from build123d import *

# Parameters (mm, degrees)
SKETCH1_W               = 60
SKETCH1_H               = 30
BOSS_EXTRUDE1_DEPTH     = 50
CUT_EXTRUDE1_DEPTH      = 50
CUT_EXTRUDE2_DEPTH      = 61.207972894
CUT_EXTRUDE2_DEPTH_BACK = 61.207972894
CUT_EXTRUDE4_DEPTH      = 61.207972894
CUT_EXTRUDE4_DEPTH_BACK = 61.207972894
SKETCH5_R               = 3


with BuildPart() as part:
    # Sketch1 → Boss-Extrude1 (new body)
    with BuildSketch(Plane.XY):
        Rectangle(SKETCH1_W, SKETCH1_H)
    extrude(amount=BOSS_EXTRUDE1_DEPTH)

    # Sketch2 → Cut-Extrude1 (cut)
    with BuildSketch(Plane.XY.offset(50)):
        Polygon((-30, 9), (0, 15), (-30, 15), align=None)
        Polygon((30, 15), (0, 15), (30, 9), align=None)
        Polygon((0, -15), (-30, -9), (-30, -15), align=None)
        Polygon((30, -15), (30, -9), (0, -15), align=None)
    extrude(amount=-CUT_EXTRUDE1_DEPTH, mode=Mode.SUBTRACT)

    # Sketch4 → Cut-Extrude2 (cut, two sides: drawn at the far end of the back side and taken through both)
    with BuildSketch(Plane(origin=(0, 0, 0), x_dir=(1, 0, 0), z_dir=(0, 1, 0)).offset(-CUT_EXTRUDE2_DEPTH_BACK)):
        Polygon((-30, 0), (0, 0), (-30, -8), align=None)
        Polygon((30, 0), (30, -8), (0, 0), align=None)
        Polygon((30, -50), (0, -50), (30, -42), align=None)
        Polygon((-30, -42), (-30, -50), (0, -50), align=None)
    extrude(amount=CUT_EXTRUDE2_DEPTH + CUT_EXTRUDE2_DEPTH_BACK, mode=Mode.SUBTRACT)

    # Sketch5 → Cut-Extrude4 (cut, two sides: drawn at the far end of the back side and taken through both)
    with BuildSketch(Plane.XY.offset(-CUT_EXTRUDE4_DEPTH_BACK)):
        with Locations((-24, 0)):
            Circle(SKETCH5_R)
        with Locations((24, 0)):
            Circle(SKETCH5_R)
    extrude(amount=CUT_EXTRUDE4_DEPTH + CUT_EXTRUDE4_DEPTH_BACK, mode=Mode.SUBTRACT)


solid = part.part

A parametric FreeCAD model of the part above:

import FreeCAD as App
import Part
import Sketcher


def add_polygon(sketch, points):
    """Adds a closed chain of lines whose ends are joined by coincident constraints."""
    first, n = sketch.GeometryCount, len(points)
    for a, b in zip(points, points[1:] + points[:1]):
        sketch.addGeometry(Part.LineSegment(App.Vector(*a, 0), App.Vector(*b, 0)), False)
    for i in range(n):
        sketch.addConstraint(Sketcher.Constraint("Coincident", first + i, 2, first + (i + 1) % n, 1))

doc = App.newDocument("Part")
body = doc.addObject("PartDesign::Body", "Body")

sketch1 = body.newObject("Sketcher::SketchObject", "Sketch")
sketch1.AttachmentSupport = (doc.getObject("XY_Plane"), [""])
sketch1.MapMode = "FlatFace"
add_polygon(sketch1, [(-30, 15), (-30, -15), (30, -15), (30, 15)])
sketch1.addConstraint(Sketcher.Constraint("Vertical", 0))
sketch1.addConstraint(Sketcher.Constraint("Horizontal", 1))
sketch1.addConstraint(Sketcher.Constraint("Vertical", 2))
sketch1.addConstraint(Sketcher.Constraint("Horizontal", 3))
sketch1.addConstraint(Sketcher.Constraint("Symmetric", 0, 2, 2, 2, -1, 1))
sketch1.addConstraint(Sketcher.Constraint("DistanceX", 1, 1, 1, 2, 60.0))
sketch1.addConstraint(Sketcher.Constraint("DistanceY", 0, 2, 0, 1, 30.0))
pad1 = body.newObject("PartDesign::Pad", "Pad")
pad1.Profile = sketch1
pad1.Length = 50

sketch2 = body.newObject("Sketcher::SketchObject", "Sketch001")
sketch2.AttachmentSupport = (doc.getObject("XY_Plane"), [""])
sketch2.MapMode = "FlatFace"
sketch2.AttachmentOffset = App.Placement(App.Vector(0, 0, 50), App.Rotation())
add_polygon(sketch2, [(-30, 9), (0, 15), (-30, 15)])
add_polygon(sketch2, [(30, 15), (0, 15), (30, 9)])
add_polygon(sketch2, [(0, -15), (-30, -9), (-30, -15)])
add_polygon(sketch2, [(30, -15), (30, -9), (0, -15)])
sketch2.addConstraint(Sketcher.Constraint("Horizontal", 1))
sketch2.addConstraint(Sketcher.Constraint("Vertical", 2))
sketch2.addConstraint(Sketcher.Constraint("Horizontal", 3))
sketch2.addConstraint(Sketcher.Constraint("Vertical", 5))
sketch2.addConstraint(Sketcher.Constraint("Vertical", 7))
sketch2.addConstraint(Sketcher.Constraint("Horizontal", 8))
sketch2.addConstraint(Sketcher.Constraint("Vertical", 9))
sketch2.addConstraint(Sketcher.Constraint("Horizontal", 11))
sketch2.addConstraint(Sketcher.Constraint("Coincident", 3, 2, 0, 2))
sketch2.addConstraint(Sketcher.Constraint("Coincident", 10, 2, 8, 2))
sketch2.addConstraint(Sketcher.Constraint("Symmetric", 4, 2, 6, 2, -1, 1))
sketch2.addConstraint(Sketcher.Constraint("Symmetric", 0, 2, 8, 2, -1, 1))
sketch2.addConstraint(Sketcher.Constraint("Symmetric", 2, 2, 9, 2, -1, 1))
sketch2.addConstraint(Sketcher.Constraint("Symmetric", 2, 2, 4, 2, -2))
sketch2.addConstraint(Sketcher.Constraint("PointOnObject", 0, 2, -2))
sketch2.addConstraint(Sketcher.Constraint("DistanceX", 1, 2, 1, 1, 30.0))
sketch2.addConstraint(Sketcher.Constraint("DistanceY", 2, 2, 2, 1, 6.0))
sketch2.addConstraint(Sketcher.Constraint("DistanceY", -1, 1, 0, 2, 15.0))
pocket1 = body.newObject("PartDesign::Pocket", "Pocket")
pocket1.Profile = sketch2
pocket1.Length = 50

sketch3 = body.newObject("Sketcher::SketchObject", "Sketch002")
sketch3.AttachmentSupport = (doc.getObject("XZ_Plane"), [""])
sketch3.MapMode = "FlatFace"
add_polygon(sketch3, [(0, 0), (-30, 0), (-30, 8)])
add_polygon(sketch3, [(30, 8), (30, 0), (0, 0)])
add_polygon(sketch3, [(0, 50), (30, 50), (30, 42)])
add_polygon(sketch3, [(-30, 42), (-30, 50), (0, 50)])
sketch3.addConstraint(Sketcher.Constraint("Horizontal", 0))
sketch3.addConstraint(Sketcher.Constraint("Vertical", 1))
sketch3.addConstraint(Sketcher.Constraint("Vertical", 3))
sketch3.addConstraint(Sketcher.Constraint("Horizontal", 4))
sketch3.addConstraint(Sketcher.Constraint("Horizontal", 6))
sketch3.addConstraint(Sketcher.Constraint("Vertical", 7))
sketch3.addConstraint(Sketcher.Constraint("Vertical", 9))
sketch3.addConstraint(Sketcher.Constraint("Horizontal", 10))
sketch3.addConstraint(Sketcher.Constraint("Coincident", 2, 2, -1, 1))
sketch3.addConstraint(Sketcher.Constraint("Coincident", 4, 2, -1, 1))
sketch3.addConstraint(Sketcher.Constraint("Coincident", 10, 2, 8, 2))
sketch3.addConstraint(Sketcher.Constraint("Symmetric", 1, 2, 5, 2, -2))
sketch3.addConstraint(Sketcher.Constraint("Symmetric", 7, 2, 11, 2, -2))
sketch3.addConstraint(Sketcher.Constraint("PointOnObject", 8, 2, -2))
sketch3.addConstraint(Sketcher.Constraint("Parallel", 2, 8))
sketch3.addConstraint(Sketcher.Constraint("Vertical", 5, 2, 6, 2))
sketch3.addConstraint(Sketcher.Constraint("DistanceX", 0, 2, 0, 1, 30.0))
sketch3.addConstraint(Sketcher.Constraint("DistanceY", 1, 1, 1, 2, 8.0))
sketch3.addConstraint(Sketcher.Constraint("DistanceY", -1, 1, 6, 2, 50.0))
pocket2 = body.newObject("PartDesign::Pocket", "Pocket001")
pocket2.Profile = sketch3
pocket2.Type = "ThroughAll"
pocket2.Midplane = True

sketch4 = body.newObject("Sketcher::SketchObject", "Sketch003")
sketch4.AttachmentSupport = (doc.getObject("XY_Plane"), [""])
sketch4.MapMode = "FlatFace"
sketch4.addGeometry(Part.Circle(App.Vector(-24, 0, 0), App.Vector(0, 0, 1), 3), False)
sketch4.addGeometry(Part.Circle(App.Vector(24, 0, 0), App.Vector(0, 0, 1), 3), False)
sketch4.addConstraint(Sketcher.Constraint("Equal", 0, 1))
sketch4.addConstraint(Sketcher.Constraint("Symmetric", 0, 3, 1, 3, -1, 1))
sketch4.addConstraint(Sketcher.Constraint("PointOnObject", 0, 3, -1))
sketch4.addConstraint(Sketcher.Constraint("Diameter", 0, 6.0))
sketch4.addConstraint(Sketcher.Constraint("DistanceX", 0, 3, -1, 1, 24.0))
pocket3 = body.newObject("PartDesign::Pocket", "Pocket002")
pocket3.Profile = sketch4
pocket3.Type = "ThroughAll"
pocket3.Midplane = True

doc.recompute()
